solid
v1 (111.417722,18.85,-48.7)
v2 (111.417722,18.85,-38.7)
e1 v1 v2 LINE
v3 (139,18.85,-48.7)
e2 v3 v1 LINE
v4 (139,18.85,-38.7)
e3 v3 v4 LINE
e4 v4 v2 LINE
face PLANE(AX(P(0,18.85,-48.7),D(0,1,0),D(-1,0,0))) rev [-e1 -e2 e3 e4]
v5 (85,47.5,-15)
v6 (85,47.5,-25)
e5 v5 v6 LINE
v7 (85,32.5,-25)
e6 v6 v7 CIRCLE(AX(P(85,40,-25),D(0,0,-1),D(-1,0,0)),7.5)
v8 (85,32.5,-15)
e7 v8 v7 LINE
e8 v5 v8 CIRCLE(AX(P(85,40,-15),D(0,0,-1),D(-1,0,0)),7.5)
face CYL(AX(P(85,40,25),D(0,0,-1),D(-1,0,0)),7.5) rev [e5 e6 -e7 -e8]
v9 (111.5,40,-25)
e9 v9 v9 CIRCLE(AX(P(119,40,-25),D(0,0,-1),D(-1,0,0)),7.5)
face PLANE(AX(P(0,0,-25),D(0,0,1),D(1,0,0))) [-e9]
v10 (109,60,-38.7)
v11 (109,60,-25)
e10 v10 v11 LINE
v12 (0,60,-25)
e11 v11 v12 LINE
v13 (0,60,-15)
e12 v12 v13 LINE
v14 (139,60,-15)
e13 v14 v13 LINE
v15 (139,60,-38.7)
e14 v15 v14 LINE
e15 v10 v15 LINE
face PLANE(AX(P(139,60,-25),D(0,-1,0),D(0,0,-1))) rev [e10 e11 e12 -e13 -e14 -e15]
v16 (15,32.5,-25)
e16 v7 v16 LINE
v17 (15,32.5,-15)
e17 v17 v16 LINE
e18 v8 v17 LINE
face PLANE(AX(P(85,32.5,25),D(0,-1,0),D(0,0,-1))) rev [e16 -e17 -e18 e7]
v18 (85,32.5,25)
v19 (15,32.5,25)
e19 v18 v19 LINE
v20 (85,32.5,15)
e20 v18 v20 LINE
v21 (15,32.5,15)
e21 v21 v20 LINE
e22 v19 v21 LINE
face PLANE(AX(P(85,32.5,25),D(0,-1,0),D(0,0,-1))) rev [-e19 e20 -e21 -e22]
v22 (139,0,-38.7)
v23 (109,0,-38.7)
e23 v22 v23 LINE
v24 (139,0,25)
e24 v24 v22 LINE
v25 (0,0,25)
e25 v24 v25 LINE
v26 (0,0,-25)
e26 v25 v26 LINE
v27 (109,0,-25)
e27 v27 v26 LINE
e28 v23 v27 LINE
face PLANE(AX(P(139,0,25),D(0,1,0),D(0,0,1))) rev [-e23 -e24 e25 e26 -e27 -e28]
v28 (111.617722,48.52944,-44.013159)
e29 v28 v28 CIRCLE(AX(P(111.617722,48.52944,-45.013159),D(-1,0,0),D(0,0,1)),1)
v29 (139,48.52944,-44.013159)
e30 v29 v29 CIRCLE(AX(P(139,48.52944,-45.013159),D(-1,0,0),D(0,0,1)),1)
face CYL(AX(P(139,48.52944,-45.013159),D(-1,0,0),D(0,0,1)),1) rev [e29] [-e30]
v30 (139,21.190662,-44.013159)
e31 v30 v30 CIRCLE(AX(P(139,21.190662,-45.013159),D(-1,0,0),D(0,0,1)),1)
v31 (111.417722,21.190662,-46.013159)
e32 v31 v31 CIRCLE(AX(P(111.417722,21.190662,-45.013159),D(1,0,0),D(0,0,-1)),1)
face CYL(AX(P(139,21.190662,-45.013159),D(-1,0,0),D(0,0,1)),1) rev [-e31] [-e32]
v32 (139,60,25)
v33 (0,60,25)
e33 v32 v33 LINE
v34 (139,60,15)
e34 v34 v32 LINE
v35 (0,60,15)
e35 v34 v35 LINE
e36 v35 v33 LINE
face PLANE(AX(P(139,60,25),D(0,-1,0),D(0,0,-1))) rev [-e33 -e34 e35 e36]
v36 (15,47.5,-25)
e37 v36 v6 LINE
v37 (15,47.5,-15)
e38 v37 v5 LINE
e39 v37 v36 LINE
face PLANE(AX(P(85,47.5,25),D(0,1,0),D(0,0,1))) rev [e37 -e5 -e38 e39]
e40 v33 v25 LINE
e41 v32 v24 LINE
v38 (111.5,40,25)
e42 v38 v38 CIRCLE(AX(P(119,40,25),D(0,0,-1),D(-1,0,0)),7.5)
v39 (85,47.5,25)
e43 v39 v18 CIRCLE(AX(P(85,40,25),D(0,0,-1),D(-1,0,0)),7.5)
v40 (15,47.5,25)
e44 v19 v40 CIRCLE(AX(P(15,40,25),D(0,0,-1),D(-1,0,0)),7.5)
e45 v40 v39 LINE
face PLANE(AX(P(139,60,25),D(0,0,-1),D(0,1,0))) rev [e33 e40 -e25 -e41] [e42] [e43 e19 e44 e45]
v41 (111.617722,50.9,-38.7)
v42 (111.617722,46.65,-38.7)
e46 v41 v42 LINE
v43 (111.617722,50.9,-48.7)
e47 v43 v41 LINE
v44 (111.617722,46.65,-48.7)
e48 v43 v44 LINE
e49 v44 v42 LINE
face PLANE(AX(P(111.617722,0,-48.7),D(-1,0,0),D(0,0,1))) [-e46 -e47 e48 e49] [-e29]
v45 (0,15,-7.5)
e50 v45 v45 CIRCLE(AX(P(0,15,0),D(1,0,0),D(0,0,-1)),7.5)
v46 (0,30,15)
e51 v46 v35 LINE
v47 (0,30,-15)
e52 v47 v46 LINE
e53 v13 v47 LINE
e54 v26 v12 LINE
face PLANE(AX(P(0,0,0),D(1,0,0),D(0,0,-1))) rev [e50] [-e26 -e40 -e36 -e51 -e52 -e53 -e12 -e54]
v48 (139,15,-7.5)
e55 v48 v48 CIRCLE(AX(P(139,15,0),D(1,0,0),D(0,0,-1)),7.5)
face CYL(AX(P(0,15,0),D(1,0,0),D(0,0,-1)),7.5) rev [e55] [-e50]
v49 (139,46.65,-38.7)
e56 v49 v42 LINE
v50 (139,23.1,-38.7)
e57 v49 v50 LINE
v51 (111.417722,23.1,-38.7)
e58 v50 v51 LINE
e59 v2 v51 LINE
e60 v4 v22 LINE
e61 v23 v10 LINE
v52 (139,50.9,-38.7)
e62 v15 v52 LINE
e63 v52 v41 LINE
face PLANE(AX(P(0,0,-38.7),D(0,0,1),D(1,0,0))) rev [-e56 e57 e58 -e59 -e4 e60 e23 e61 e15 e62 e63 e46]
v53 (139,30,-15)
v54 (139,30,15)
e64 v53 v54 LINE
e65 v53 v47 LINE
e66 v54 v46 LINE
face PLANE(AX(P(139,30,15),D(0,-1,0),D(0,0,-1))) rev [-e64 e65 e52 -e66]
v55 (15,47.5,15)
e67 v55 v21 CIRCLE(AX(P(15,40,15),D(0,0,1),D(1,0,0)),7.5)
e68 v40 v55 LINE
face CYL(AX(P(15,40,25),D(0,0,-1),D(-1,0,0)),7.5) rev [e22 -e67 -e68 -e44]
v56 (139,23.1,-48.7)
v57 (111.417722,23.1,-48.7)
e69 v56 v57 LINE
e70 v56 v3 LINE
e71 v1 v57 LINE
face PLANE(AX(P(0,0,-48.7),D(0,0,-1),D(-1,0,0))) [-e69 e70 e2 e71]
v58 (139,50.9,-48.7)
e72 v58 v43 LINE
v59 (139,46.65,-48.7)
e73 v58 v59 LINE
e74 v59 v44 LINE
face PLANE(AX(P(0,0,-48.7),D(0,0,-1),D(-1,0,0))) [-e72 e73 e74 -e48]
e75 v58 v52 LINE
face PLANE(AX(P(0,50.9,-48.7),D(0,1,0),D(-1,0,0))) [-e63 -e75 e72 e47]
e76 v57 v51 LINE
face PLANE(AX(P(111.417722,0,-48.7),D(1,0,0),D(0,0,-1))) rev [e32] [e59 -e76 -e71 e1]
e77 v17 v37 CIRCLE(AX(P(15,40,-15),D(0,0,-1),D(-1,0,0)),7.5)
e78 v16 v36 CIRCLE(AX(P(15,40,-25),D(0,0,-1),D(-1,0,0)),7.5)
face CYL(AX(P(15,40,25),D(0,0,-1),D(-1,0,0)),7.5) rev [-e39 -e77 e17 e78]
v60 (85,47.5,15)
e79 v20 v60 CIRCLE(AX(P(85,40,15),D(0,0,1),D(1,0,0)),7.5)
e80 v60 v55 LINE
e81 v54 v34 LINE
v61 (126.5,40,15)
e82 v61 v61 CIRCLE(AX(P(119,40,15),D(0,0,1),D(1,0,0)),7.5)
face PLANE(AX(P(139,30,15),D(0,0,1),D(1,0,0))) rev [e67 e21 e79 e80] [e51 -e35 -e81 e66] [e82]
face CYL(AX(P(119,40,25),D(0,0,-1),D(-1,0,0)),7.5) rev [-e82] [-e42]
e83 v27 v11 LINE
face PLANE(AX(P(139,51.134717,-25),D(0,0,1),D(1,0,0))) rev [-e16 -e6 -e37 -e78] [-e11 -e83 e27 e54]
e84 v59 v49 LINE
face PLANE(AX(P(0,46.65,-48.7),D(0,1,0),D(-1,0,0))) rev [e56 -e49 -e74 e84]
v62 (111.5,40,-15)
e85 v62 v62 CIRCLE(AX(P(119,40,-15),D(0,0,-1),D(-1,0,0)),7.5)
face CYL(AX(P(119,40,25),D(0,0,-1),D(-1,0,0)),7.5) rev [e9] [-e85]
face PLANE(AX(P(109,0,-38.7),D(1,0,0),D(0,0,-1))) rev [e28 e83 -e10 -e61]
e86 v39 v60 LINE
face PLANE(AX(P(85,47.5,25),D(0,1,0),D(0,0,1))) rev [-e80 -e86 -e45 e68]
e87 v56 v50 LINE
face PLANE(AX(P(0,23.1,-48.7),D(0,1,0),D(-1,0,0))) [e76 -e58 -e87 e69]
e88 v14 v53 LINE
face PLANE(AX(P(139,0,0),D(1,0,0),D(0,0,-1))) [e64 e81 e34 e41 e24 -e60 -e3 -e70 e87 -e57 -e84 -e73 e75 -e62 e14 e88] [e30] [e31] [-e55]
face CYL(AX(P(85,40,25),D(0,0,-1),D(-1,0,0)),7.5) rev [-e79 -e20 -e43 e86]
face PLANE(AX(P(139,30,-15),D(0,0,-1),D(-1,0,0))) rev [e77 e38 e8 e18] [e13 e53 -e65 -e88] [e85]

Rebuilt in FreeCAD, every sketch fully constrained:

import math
import FreeCAD as App
import Part
import Sketcher

V = App.Vector


def add_polygon(sketch, points):
    """Adds a closed chain of lines whose ends are joined by coincident constraints."""
    first, n = sketch.GeometryCount, len(points)
    for a, b in zip(points, points[1:] + points[:1]):
        sketch.addGeometry(Part.LineSegment(App.Vector(*a, 0), App.Vector(*b, 0)), False)
    for i in range(n):
        sketch.addConstraint(Sketcher.Constraint("Coincident", first + i, 2, first + (i + 1) % n, 1))

doc = App.newDocument("Part")
params = doc.addObject("Spreadsheet::Sheet", "Params")
for row, (alias, value) in enumerate([
    ("sketch1_width", "30 mm"),
    ("sketch1_width2", "60 mm"),
    ("sketch1_height", "10 mm"),
    ("pad1_length", "139 mm"),
    ("sketch2_diameter", "15 mm"),
    ("sketch2_width", "70 mm"),
    ("sketch3_diameter", "15 mm"),
    ("sketch4_width", "30 mm"),
    ("sketch4_height", "60 mm"),
    ("pad2_length", "13.7 mm"),
    ("sketch5_height", "4.25 mm"),
    ("pad3_length", "10 mm"),
    ("sketch6_diameter", "2 mm"),
], start=1):
    params.set(f"A{row}", alias)
    params.set(f"B{row}", "=" + value)
    params.setAlias(f"B{row}", alias)

body = doc.addObject("PartDesign::Body", "Body")

sketch1 = body.newObject("Sketcher::SketchObject", "Sketch")
sketch1.AttachmentSupport = (doc.getObject("YZ_Plane"), [""])
sketch1.MapMode = "FlatFace"
add_polygon(sketch1, [(30, -15), (30, 15), (60, 15), (60, 25), (0, 25), (0, -25), (60, -25), (60, -15)])
sketch1.addConstraint([
    Sketcher.Constraint("Vertical", 0),
    Sketcher.Constraint("Horizontal", 1),
    Sketcher.Constraint("Vertical", 2),
    Sketcher.Constraint("Horizontal", 3),
    Sketcher.Constraint("Vertical", 4),
    Sketcher.Constraint("Horizontal", 5),
    Sketcher.Constraint("Vertical", 6),
    Sketcher.Constraint("Horizontal", 7),
    Sketcher.Constraint("Symmetric", 3, 2, 4, 2, -1, 1),
    Sketcher.Constraint("Symmetric", 1, 2, 6, 2, -1),
    Sketcher.Constraint("Equal", 7, 0),
    Sketcher.Constraint("DistanceX", 1, 1, 1, 2, 30.0),
    Sketcher.Constraint("DistanceX", 3, 2, 3, 1, 60.0),
    Sketcher.Constraint("DistanceY", 2, 1, 2, 2, 10.0),
])
sketch1.setExpression("Constraints[19]", "Params.sketch1_width")
sketch1.setExpression("Constraints[20]", "Params.sketch1_width2")
sketch1.setExpression("Constraints[21]", "Params.sketch1_height")
pad1 = body.newObject("PartDesign::Pad", "Pad")
pad1.Profile = sketch1
pad1.setExpression("Length", "Params.pad1_length")

sketch2 = body.newObject("Sketcher::SketchObject", "Sketch001")
sketch2.AttachmentSupport = (doc.getObject("XY_Plane"), [""])
sketch2.MapMode = "FlatFace"
sketch2.AttachmentOffset = App.Placement(V(0, 0, -25), App.Rotation())
sketch2.addGeometry([
    Part.Circle(V(119, 40, 0), V(0, 0, 1), 8),
    Part.LineSegment(V(15, 48, 0), V(85, 48, 0)),
    Part.ArcOfCircle(Part.Circle(V(85, 40, 0), V(0, 0, 1), 8), math.radians(-90), math.radians(90)),
    Part.LineSegment(V(85, 32, 0), V(15, 32, 0)),
    Part.ArcOfCircle(Part.Circle(V(15, 40, 0), V(0, 0, 1), 8), math.radians(90), math.radians(270)),
], False)
sketch2.addConstraint([
    Sketcher.Constraint("Tangent", 1, 2, 2, 2),
    Sketcher.Constraint("Tangent", 2, 1, 3, 1),
    Sketcher.Constraint("Tangent", 3, 2, 4, 2),
    Sketcher.Constraint("Tangent", 4, 1, 1, 1),
    Sketcher.Constraint("Horizontal", 1),
    Sketcher.Constraint("Horizontal", 3),
    Sketcher.Constraint("Equal", 0, 2),
    Sketcher.Constraint("Horizontal", 0, 3, 2, 3),
    Sketcher.Constraint("Diameter", 0, 15.0),
    Sketcher.Constraint("DistanceX", 1, 1, 1, 2, 70.0),
    Sketcher.Constraint("DistanceX", -1, 1, 0, 3, 119.0),
    Sketcher.Constraint("DistanceY", -1, 1, 0, 3, 40.0),
    Sketcher.Constraint("DistanceX", -1, 1, 2, 3, 85.0),
])
sketch2.setExpression("Constraints[8]", "Params.sketch2_diameter")
sketch2.setExpression("Constraints[9]", "Params.sketch2_width")
pocket1 = body.newObject("PartDesign::Pocket", "Pocket")
pocket1.Profile = sketch2
pocket1.Type = "ThroughAll"
pocket1.Reversed = True

sketch3 = body.newObject("Sketcher::SketchObject", "Sketch002")
sketch3.AttachmentSupport = (doc.getObject("YZ_Plane"), [""])
sketch3.MapMode = "FlatFace"
sketch3.AttachmentOffset = App.Placement(V(0, 0, 139), App.Rotation())
sketch3.addGeometry(Part.Circle(V(15, 0, 0), V(0, 0, 1), 8), False)
sketch3.addConstraint([
    Sketcher.Constraint("PointOnObject", 0, 3, -1),
    Sketcher.Constraint("Diameter", 0, 15.0),
    Sketcher.Constraint("DistanceX", -1, 1, 0, 3, 15.0),
])
sketch3.setExpression("Constraints[1]", "Params.sketch3_diameter")
pocket2 = body.newObject("PartDesign::Pocket", "Pocket001")
pocket2.Profile = sketch3
pocket2.Type = "ThroughAll"
pocket2.Midplane = True

sketch4 = body.newObject("Sketcher::SketchObject", "Sketch003")
sketch4.AttachmentSupport = (doc.getObject("XY_Plane"), [""])
sketch4.MapMode = "FlatFace"
sketch4.AttachmentOffset = App.Placement(V(0, 0, -25), App.Rotation())
add_polygon(sketch4, [(139, 60), (139, 0), (109, 0), (109, 60)])
sketch4.addConstraint([
    Sketcher.Constraint("Vertical", 0),
    Sketcher.Constraint("Horizontal", 1),
    Sketcher.Constraint("Vertical", 2),
    Sketcher.Constraint("Horizontal", 3),
    Sketcher.Constraint("PointOnObject", 0, 2, -1),
    Sketcher.Constraint("DistanceX", 1, 2, 1, 1, 30.0),
    Sketcher.Constraint("DistanceY", 0, 2, 0, 1, 60.0),
    Sketcher.Constraint("DistanceX", -1, 1, 0, 2, 139.0),
])
sketch4.setExpression("Constraints[9]", "Params.sketch4_width")
sketch4.setExpression("Constraints[10]", "Params.sketch4_height")
pad2 = body.newObject("PartDesign::Pad", "Pad001")
pad2.Profile = sketch4
pad2.setExpression("Length", "Params.pad2_length")
pad2.Reversed = True

sketch5 = body.newObject("Sketcher::SketchObject", "Sketch004")
sketch5.AttachmentSupport = (doc.getObject("XY_Plane"), [""])
sketch5.MapMode = "FlatFace"
sketch5.AttachmentOffset = App.Placement(V(0, 0, -38.7), App.Rotation())
add_polygon(sketch5, [(139, 23.1), (139, 18.9), (111.4, 18.9), (111.4, 23.1)])
add_polygon(sketch5, [(139, 50.9), (139, 46.6), (111.6, 46.6), (111.6, 50.9)])
sketch5.addConstraint([
    Sketcher.Constraint("Vertical", 0),
    Sketcher.Constraint("Horizontal", 1),
    Sketcher.Constraint("Vertical", 2),
    Sketcher.Constraint("Horizontal", 3),
    Sketcher.Constraint("Vertical", 4),
    Sketcher.Constraint("Horizontal", 5),
    Sketcher.Constraint("Vertical", 6),
    Sketcher.Constraint("Horizontal", 7),
    Sketcher.Constraint("Vertical", 3, 2, 4, 2),
    Sketcher.Constraint("Equal", 2, 4),
    Sketcher.Constraint("DistanceX", -1, 1, 0, 2, 139.0),
    Sketcher.Constraint("DistanceY", 0, 2, 0, 1, 4.25),
    Sketcher.Constraint("DistanceY", -1, 1, 2, 2, 23.1),
    Sketcher.Constraint("DistanceY", -1, 1, 6, 2, 50.9),
    Sketcher.Constraint("DistanceX", 2, 2, 5, 2, 0.2),
    Sketcher.Constraint("DistanceX", 1, 2, 1, 1, 27.582278),
])
sketch5.setExpression("Constraints[19]", "Params.sketch5_height")
pad3 = body.newObject("PartDesign::Pad", "Pad002")
pad3.Profile = sketch5
pad3.setExpression("Length", "Params.pad3_length")
pad3.Reversed = True

sketch6 = body.newObject("Sketcher::SketchObject", "Sketch005")
sketch6.AttachmentSupport = (doc.getObject("YZ_Plane"), [""])
sketch6.MapMode = "FlatFace"
sketch6.AttachmentOffset = App.Placement(V(0, 0, 111.617722), App.Rotation())
sketch6.addGeometry([
    Part.Circle(V(48.5, -45, 0), V(0, 0, 1), 1),
    Part.Circle(V(21.2, -45, 0), V(0, 0, 1), 1),
], False)
sketch6.addConstraint([
    Sketcher.Constraint("Equal", 0, 1),
    Sketcher.Constraint("Horizontal", 0, 3, 1, 3),
    Sketcher.Constraint("Diameter", 0, 2.0),
    Sketcher.Constraint("DistanceX", -1, 1, 0, 3, 48.52944),
    Sketcher.Constraint("DistanceY", 0, 3, -1, 1, 45.013159),
    Sketcher.Constraint("DistanceX", -1, 1, 1, 3, 21.190662),
])
sketch6.setExpression("Constraints[2]", "Params.sketch6_diameter")
pocket3 = body.newObject("PartDesign::Pocket", "Pocket002")
pocket3.Profile = sketch6
pocket3.Type = "ThroughAll"
pocket3.Midplane = True

doc.recompute()
